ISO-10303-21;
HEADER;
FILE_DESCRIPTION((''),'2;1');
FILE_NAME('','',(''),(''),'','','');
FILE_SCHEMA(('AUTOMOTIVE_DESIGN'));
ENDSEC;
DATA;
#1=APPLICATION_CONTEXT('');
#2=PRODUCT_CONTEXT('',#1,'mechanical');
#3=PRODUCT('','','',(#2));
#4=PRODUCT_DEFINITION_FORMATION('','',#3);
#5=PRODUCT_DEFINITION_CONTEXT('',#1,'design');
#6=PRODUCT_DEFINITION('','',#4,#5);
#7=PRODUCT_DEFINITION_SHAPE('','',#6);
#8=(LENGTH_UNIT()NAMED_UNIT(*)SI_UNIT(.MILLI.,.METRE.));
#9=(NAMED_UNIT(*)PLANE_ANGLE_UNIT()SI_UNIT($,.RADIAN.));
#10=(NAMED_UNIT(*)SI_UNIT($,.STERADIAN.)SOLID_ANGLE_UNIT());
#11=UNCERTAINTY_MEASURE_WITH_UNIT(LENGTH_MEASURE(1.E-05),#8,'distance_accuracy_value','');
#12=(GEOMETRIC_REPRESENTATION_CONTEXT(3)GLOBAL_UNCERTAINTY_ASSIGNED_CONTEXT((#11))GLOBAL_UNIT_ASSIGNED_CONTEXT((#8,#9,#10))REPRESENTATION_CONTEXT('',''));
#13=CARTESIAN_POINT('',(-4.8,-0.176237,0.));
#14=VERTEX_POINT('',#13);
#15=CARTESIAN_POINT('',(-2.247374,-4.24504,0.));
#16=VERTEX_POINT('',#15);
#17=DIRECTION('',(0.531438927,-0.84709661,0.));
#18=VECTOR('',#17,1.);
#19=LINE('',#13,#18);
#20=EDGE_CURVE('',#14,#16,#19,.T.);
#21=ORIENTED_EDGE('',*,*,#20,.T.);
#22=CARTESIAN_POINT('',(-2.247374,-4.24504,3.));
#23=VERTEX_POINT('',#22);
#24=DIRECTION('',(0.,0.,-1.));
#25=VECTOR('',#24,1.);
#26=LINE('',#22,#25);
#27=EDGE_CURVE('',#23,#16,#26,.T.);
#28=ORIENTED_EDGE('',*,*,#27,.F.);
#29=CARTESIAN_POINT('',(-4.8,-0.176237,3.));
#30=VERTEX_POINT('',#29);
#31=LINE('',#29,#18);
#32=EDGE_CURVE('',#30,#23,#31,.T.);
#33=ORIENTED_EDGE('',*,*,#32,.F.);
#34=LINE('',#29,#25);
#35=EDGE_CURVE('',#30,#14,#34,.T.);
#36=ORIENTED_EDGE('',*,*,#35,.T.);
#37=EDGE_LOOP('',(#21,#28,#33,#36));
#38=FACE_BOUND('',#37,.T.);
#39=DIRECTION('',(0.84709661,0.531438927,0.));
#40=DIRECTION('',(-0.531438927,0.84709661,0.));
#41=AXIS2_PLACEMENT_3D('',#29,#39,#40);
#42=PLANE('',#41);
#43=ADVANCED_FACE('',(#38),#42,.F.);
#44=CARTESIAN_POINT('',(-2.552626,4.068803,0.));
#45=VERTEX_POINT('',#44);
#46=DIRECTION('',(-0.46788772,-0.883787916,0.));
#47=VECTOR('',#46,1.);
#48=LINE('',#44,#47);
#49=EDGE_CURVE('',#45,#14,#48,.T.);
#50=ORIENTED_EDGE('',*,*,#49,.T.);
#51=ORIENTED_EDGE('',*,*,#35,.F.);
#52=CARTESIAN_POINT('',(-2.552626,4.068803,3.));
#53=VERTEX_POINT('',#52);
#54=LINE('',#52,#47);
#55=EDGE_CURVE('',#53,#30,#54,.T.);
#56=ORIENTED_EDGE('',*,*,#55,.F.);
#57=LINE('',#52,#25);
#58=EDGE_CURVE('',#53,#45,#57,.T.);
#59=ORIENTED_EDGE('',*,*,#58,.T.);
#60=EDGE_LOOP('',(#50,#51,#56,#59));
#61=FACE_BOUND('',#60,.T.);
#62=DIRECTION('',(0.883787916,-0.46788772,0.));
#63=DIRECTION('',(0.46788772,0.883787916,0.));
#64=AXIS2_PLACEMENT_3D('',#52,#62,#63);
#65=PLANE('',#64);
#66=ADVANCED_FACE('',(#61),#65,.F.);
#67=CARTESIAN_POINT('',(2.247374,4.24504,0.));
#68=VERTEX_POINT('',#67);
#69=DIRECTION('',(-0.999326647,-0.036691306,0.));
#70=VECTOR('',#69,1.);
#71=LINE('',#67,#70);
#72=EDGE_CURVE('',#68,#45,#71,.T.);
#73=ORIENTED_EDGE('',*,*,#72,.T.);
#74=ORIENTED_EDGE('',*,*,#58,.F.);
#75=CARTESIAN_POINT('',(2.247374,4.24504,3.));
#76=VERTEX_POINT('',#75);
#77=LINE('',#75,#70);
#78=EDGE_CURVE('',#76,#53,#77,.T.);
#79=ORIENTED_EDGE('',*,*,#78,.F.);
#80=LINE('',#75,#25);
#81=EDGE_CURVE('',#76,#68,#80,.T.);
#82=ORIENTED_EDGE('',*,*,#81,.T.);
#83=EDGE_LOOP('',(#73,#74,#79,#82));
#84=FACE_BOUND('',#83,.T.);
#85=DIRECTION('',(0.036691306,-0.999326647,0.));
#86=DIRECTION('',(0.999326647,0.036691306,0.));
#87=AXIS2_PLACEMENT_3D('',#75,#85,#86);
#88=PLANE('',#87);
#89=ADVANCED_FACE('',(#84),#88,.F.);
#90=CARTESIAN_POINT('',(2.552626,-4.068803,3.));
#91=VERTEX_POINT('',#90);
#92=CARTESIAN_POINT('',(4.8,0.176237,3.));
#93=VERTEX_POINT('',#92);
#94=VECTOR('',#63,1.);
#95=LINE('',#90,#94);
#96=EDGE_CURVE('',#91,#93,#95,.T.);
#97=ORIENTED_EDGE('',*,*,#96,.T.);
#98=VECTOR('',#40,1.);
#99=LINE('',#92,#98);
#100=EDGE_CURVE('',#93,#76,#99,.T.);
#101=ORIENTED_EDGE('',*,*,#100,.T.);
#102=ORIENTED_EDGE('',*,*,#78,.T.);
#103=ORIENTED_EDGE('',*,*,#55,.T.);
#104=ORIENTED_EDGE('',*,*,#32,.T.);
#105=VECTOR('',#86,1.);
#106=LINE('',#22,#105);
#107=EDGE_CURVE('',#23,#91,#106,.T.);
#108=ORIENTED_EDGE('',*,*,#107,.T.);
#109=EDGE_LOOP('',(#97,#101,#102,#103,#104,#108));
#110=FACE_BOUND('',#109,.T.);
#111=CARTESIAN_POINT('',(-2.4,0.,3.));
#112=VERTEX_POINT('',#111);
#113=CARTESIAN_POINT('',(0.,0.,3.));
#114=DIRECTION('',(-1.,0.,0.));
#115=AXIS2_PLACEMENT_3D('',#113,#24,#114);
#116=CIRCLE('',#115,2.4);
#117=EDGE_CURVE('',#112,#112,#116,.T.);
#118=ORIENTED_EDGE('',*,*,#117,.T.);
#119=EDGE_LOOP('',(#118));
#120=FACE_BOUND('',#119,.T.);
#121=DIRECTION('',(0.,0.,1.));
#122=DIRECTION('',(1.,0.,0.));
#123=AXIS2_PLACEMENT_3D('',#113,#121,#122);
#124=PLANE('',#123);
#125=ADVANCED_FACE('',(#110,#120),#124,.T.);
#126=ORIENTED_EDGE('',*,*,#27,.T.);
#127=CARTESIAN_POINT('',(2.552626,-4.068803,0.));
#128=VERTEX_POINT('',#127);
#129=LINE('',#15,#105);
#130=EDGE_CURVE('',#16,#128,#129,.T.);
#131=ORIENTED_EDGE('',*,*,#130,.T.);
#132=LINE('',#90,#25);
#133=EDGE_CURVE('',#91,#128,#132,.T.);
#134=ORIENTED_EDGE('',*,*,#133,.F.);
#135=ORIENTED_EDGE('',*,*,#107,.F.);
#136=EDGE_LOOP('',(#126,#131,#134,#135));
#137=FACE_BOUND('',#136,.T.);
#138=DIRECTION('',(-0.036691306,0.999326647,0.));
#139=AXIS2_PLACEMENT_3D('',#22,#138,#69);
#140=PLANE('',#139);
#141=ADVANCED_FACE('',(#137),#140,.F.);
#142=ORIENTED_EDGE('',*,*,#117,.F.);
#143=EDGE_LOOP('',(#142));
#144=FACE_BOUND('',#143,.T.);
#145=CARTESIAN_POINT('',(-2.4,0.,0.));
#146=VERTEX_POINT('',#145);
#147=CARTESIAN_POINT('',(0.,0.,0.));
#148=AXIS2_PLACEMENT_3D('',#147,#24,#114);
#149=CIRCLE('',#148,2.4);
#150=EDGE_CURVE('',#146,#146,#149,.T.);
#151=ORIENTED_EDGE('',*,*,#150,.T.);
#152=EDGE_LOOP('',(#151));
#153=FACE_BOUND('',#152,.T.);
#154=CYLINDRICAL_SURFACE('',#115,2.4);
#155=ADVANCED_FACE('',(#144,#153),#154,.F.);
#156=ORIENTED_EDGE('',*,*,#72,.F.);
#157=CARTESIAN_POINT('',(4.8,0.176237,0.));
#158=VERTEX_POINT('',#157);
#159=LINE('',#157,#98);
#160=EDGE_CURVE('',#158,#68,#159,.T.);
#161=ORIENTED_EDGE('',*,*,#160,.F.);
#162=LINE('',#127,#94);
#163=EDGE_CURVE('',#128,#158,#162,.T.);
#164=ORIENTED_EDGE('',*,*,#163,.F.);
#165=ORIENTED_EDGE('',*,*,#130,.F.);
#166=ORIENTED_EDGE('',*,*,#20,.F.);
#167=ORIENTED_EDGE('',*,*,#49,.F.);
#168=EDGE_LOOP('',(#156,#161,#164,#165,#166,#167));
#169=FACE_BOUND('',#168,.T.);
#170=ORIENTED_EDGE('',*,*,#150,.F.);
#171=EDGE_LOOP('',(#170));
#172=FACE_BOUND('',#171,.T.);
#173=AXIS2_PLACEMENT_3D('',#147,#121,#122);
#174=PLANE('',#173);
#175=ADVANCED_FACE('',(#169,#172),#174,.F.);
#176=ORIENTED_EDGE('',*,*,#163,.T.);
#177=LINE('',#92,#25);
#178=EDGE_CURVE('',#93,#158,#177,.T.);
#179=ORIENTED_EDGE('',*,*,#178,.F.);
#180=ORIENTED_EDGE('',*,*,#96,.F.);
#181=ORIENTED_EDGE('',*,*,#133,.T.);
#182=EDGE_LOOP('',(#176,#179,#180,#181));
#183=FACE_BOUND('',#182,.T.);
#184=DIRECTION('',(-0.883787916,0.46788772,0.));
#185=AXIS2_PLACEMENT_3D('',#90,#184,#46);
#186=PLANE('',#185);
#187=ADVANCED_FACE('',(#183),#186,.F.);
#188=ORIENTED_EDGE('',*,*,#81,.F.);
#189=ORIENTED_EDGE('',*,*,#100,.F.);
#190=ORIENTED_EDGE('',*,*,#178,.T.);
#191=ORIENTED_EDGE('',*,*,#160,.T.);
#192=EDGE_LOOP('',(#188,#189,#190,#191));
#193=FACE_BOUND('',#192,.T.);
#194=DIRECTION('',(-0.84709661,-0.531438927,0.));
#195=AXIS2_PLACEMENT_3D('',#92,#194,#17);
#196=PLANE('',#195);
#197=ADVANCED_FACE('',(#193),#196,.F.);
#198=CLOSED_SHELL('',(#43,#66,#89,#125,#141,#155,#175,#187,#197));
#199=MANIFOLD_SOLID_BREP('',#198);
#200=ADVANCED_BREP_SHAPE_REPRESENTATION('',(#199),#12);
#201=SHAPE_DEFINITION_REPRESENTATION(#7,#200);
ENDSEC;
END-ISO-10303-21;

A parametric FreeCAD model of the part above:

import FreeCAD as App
import Part
import Sketcher
from FreeCAD import Vector
Q = App.Units.Quantity

doc = App.newDocument("Part")
params = doc.addObject("Spreadsheet::Sheet", "Params")
for row, (alias, value) in enumerate([
    ("pad1_length", "3 mm"),
    ("sketch2_diameter", "4.8 mm"),
    ("pocket1_length", "3 mm"),
], start=1):
    params.set(f"A{row}", alias)
    params.set(f"B{row}", "=" + value)
    params.setAlias(f"B{row}", alias)

body = doc.addObject("PartDesign::Body", "Body")

sketch1 = body.newObject("Sketcher::SketchObject", "Sketch")
sketch1.AttachmentSupport = (doc.getObject("XY_Plane"), [""])
sketch1.MapMode = "FlatFace"
sketch1.addGeometry(Part.LineSegment(Vector(2.247374, 4.24504, 0), Vector(-2.552626, 4.068803, 0)), False)
sketch1.addGeometry(Part.LineSegment(Vector(-2.552626, 4.068803, 0), Vector(-4.8, -0.176237, 0)), False)
sketch1.addGeometry(Part.LineSegment(Vector(-4.8, -0.176237, 0), Vector(-2.247374, -4.24504, 0)), False)
sketch1.addGeometry(Part.LineSegment(Vector(-2.247374, -4.24504, 0), Vector(2.552626, -4.068803, 0)), False)
sketch1.addGeometry(Part.LineSegment(Vector(2.552626, -4.068803, 0), Vector(4.8, 0.176237, 0)), False)
sketch1.addGeometry(Part.LineSegment(Vector(4.8, 0.176237, 0), Vector(2.247374, 4.24504, 0)), False)
sketch1.addConstraint(Sketcher.Constraint("Coincident", 0, 2, 1, 1))
sketch1.addConstraint(Sketcher.Constraint("Coincident", 1, 2, 2, 1))
sketch1.addConstraint(Sketcher.Constraint("Coincident", 2, 2, 3, 1))
sketch1.addConstraint(Sketcher.Constraint("Coincident", 3, 2, 4, 1))
sketch1.addConstraint(Sketcher.Constraint("Coincident", 4, 2, 5, 1))
sketch1.addConstraint(Sketcher.Constraint("Coincident", 5, 2, 0, 1))
sketch1.addConstraint(Sketcher.Constraint("Symmetric", 0, 2, 3, 2, -1, 1))
sketch1.addConstraint(Sketcher.Constraint("Symmetric", 1, 2, 4, 2, -1, 1))
sketch1.addConstraint(Sketcher.Constraint("Symmetric", 2, 2, 5, 2, -1, 1))
sketch1.addConstraint(Sketcher.Constraint("Equal", 0, 1))
sketch1.addConstraint(Sketcher.Constraint("Equal", 1, 2))
sketch1.addConstraint(Sketcher.Constraint("DistanceX", 1, 2, -1, 1, Q("4.8 mm")))
sketch1.addConstraint(Sketcher.Constraint("DistanceX", 2, 2, 3, 2, Q("4.8 mm")))
sketch1.addConstraint(Sketcher.Constraint("DistanceY", 2, 2, -1, 1, Q("4.24504 mm")))
sketch1.addConstraint(Sketcher.Constraint("DistanceY", 1, 2, 0, 2, Q("4.24504 mm")))
pad1 = body.newObject("PartDesign::Pad", "Pad")
pad1.Profile = sketch1
pad1.setExpression("Length", "Params.pad1_length")

sketch2 = body.newObject("Sketcher::SketchObject", "Sketch001")
sketch2.AttachmentSupport = (doc.getObject("XY_Plane"), [""])
sketch2.MapMode = "FlatFace"
sketch2.addGeometry(Part.Circle(Vector(0, 0, 0), Vector(0, 0, 1), 2.4), False)
sketch2.addConstraint(Sketcher.Constraint("Coincident", 0, 3, -1, 1))
sketch2.addConstraint(Sketcher.Constraint("Diameter", 0, Q("4.8 mm")))
sketch2.setExpression("Constraints[1]", "Params.sketch2_diameter")
pocket1 = body.newObject("PartDesign::Pocket", "Pocket")
pocket1.Profile = sketch2
pocket1.setExpression("Length", "Params.pocket1_length")
pocket1.Reversed = True

doc.recompute()
